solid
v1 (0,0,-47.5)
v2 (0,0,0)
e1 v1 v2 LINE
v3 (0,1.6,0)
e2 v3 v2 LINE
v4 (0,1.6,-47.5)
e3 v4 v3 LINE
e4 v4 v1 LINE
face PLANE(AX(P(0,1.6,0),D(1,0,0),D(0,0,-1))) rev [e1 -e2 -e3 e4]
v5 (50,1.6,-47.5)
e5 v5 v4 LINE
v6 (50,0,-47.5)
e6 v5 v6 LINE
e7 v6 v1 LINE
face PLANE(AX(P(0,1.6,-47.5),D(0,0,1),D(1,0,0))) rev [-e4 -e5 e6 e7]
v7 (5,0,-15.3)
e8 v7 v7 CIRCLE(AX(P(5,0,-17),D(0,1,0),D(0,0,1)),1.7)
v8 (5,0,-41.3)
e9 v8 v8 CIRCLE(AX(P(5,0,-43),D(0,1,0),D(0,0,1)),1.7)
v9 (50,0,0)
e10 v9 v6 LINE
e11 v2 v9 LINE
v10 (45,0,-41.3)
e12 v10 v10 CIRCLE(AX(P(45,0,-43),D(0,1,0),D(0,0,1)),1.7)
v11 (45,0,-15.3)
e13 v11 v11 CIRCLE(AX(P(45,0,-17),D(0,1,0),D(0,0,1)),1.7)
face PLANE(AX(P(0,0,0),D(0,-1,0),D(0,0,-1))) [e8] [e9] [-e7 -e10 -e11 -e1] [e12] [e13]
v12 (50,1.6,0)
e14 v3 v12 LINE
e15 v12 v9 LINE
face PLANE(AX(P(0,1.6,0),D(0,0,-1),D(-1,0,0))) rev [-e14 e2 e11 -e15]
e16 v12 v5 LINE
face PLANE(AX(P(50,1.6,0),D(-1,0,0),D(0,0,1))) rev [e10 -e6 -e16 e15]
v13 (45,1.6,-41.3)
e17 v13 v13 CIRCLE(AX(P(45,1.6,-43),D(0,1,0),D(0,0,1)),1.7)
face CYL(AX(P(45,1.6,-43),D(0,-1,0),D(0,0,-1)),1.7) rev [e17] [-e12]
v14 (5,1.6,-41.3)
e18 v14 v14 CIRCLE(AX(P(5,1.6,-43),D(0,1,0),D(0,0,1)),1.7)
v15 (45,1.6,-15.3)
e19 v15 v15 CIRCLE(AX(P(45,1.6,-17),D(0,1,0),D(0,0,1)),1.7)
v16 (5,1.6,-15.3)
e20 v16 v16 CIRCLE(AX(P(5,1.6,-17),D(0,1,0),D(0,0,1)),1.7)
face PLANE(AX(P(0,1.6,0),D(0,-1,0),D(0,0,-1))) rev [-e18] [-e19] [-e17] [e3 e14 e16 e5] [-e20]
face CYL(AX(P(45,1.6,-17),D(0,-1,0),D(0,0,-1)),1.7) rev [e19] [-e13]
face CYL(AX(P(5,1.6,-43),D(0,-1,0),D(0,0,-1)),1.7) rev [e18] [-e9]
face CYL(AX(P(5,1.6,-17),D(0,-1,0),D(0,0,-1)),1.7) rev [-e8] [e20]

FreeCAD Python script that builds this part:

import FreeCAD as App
import Part
import Sketcher


def add_polygon(sketch, points):
    """Adds a closed chain of lines whose ends are joined by coincident constraints."""
    first, n = sketch.GeometryCount, len(points)
    for a, b in zip(points, points[1:] + points[:1]):
        sketch.addGeometry(Part.LineSegment(App.Vector(*a, 0), App.Vector(*b, 0)), False)
    for i in range(n):
        sketch.addConstraint(Sketcher.Constraint("Coincident", first + i, 2, first + (i + 1) % n, 1))

doc = App.newDocument("Part")
body = doc.addObject("PartDesign::Body", "Body")

sketch1 = doc.addObject("Sketcher::SketchObject", "Sketch")
body.addObject(sketch1)
sketch1.AttachmentSupport = (doc.XZ_Plane, [""])
sketch1.MapMode = "FlatFace"
add_polygon(sketch1, [(0, -47.5), (0, 0), (50, 0), (50, -47.5)])
sketch1.addGeometry(Part.Circle(App.Vector(5, -17, 0), App.Vector(0, 0, 1), 1.7), False)
sketch1.addGeometry(Part.Circle(App.Vector(45, -17, 0), App.Vector(0, 0, 1), 1.7), False)
sketch1.addGeometry(Part.Circle(App.Vector(5, -43, 0), App.Vector(0, 0, 1), 1.7), False)
sketch1.addGeometry(Part.Circle(App.Vector(45, -43, 0), App.Vector(0, 0, 1), 1.7), False)
sketch1.addConstraint(Sketcher.Constraint("Vertical", 0))
sketch1.addConstraint(Sketcher.Constraint("Horizontal", 1))
sketch1.addConstraint(Sketcher.Constraint("Vertical", 2))
sketch1.addConstraint(Sketcher.Constraint("Horizontal", 3))
sketch1.addConstraint(Sketcher.Constraint("Coincident", 0, 2, -1, 1))
sketch1.addConstraint(Sketcher.Constraint("Equal", 4, 5))
sketch1.addConstraint(Sketcher.Constraint("Equal", 5, 6))
sketch1.addConstraint(Sketcher.Constraint("Equal", 6, 7))
sketch1.addConstraint(Sketcher.Constraint("Horizontal", 4, 3, 5, 3))
sketch1.addConstraint(Sketcher.Constraint("Horizontal", 6, 3, 7, 3))
sketch1.addConstraint(Sketcher.Constraint("Vertical", 4, 3, 6, 3))
sketch1.addConstraint(Sketcher.Constraint("Vertical", 5, 3, 7, 3))
sketch1.addConstraint(Sketcher.Constraint("Diameter", 4, 3.4))
sketch1.addConstraint(Sketcher.Constraint("DistanceX", 1, 1, 1, 2, 50.0))
sketch1.addConstraint(Sketcher.Constraint("DistanceY", 0, 1, 0, 2, 47.5))
sketch1.addConstraint(Sketcher.Constraint("DistanceX", -1, 1, 4, 3, 5.0))
sketch1.addConstraint(Sketcher.Constraint("DistanceY", 4, 3, -1, 1, 17.0))
sketch1.addConstraint(Sketcher.Constraint("DistanceX", -1, 1, 5, 3, 45.0))
sketch1.addConstraint(Sketcher.Constraint("DistanceY", 6, 3, -1, 1, 43.0))
pad1 = doc.addObject("PartDesign::Pad", "Pad")
body.addObject(pad1)
pad1.Profile = sketch1
pad1.Length = 1.6
pad1.Reversed = True

doc.recompute()
